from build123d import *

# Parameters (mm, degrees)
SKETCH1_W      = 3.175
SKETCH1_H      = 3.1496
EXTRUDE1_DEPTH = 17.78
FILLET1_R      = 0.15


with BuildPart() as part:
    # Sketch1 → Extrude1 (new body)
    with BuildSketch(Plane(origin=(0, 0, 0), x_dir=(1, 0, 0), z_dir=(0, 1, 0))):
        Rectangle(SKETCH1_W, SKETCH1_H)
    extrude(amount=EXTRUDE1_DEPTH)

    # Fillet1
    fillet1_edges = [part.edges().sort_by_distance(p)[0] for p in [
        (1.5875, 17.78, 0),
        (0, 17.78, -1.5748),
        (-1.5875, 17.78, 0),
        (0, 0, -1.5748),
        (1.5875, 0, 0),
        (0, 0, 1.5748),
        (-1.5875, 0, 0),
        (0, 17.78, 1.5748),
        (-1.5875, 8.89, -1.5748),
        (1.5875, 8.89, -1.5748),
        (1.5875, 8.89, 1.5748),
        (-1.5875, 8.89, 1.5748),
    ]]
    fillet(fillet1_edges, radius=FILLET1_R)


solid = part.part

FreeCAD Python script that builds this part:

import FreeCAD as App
import Part
import Sketcher
Q = App.Units.Quantity

doc = App.newDocument("Part")
body = doc.addObject("PartDesign::Body", "Body")

sketch1 = body.newObject("Sketcher::SketchObject", "Sketch")
sketch1.AttachmentSupport = (doc.getObject("XZ_Plane"), [""])
sketch1.MapMode = "FlatFace"
sketch1.addGeometry([
    Part.LineSegment(App.Vector(-1.5875, -1.5748, 0), App.Vector(-1.5875, 1.5748, 0)),
    Part.LineSegment(App.Vector(-1.5875, 1.5748, 0), App.Vector(1.5875, 1.5748, 0)),
    Part.LineSegment(App.Vector(1.5875, 1.5748, 0), App.Vector(1.5875, -1.5748, 0)),
    Part.LineSegment(App.Vector(1.5875, -1.5748, 0), App.Vector(-1.5875, -1.5748, 0)),
], False)
sketch1.addConstraint([
    Sketcher.Constraint("Coincident", 0, 2, 1, 1),
    Sketcher.Constraint("Coincident", 1, 2, 2, 1),
    Sketcher.Constraint("Coincident", 2, 2, 3, 1),
    Sketcher.Constraint("Coincident", 3, 2, 0, 1),
    Sketcher.Constraint("Vertical", 0),
    Sketcher.Constraint("Horizontal", 1),
    Sketcher.Constraint("Vertical", 2),
    Sketcher.Constraint("Horizontal", 3),
    Sketcher.Constraint("Symmetric", 0, 2, 2, 2, -1, 1),
    Sketcher.Constraint("DistanceX", 1, 1, 1, 2, Q("0.125 in")),
    Sketcher.Constraint("DistanceY", 0, 1, 0, 2, Q("0.124 in")),
])
pad1 = body.newObject("PartDesign::Pad", "Pad")
pad1.Profile = sketch1
pad1.Length = Q("0.7 in")
pad1.Reversed = True
doc.recompute()

fillet = body.newObject("PartDesign::Fillet", "Fillet")
fillet.Base = (pad1, ["Edge1"])
fillet.UseAllEdges = True
fillet.Radius = 0.15

doc.recompute()
